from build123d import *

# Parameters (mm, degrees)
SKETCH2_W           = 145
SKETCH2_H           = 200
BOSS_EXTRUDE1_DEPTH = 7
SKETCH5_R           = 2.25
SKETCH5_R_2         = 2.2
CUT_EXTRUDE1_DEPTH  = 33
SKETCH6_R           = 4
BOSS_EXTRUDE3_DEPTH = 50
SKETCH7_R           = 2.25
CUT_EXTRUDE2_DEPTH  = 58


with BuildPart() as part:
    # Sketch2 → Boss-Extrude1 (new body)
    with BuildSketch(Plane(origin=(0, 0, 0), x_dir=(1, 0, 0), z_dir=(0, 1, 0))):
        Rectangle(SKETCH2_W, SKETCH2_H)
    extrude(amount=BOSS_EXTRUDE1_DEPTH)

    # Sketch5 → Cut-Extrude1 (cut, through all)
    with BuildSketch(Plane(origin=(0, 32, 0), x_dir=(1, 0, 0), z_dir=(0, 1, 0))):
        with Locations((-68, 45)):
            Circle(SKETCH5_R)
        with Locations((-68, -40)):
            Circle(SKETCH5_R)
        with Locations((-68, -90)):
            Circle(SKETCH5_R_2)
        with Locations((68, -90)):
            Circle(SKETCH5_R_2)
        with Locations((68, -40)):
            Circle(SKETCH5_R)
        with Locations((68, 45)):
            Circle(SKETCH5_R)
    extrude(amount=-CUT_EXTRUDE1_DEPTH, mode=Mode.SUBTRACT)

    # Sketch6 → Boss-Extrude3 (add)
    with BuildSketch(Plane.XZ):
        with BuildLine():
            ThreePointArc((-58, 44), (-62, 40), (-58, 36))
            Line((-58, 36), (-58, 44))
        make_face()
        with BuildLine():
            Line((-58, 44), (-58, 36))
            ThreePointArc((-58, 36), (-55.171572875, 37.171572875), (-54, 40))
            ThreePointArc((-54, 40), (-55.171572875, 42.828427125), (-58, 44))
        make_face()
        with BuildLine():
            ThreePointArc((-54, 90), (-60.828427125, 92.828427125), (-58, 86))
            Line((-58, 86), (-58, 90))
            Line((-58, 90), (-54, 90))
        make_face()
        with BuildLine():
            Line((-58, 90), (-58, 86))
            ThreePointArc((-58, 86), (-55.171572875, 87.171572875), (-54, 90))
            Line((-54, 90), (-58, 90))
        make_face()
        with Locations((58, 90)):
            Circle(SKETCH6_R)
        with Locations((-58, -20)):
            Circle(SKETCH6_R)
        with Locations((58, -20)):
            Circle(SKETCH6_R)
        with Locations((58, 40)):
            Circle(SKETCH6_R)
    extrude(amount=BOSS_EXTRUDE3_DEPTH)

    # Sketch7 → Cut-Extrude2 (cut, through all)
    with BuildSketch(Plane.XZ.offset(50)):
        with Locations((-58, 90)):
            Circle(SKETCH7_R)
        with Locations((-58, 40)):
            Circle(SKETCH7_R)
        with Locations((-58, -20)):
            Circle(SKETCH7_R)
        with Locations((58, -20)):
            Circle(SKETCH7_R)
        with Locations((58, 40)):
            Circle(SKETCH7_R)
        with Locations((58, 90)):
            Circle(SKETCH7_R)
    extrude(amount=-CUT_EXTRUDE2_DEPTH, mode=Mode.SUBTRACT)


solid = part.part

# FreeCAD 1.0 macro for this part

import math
import FreeCAD as App
import Part
import Sketcher
from FreeCAD import Vector

doc = App.newDocument("Part")
body = doc.addObject("PartDesign::Body", "Body")

# Sketch on XZ plane
sketch1 = body.newObject("Sketcher::SketchObject", "Sketch")
sketch1.AttachmentSupport = (doc.getObject("XZ_Plane"), [""])
sketch1.MapMode = "FlatFace"
sketch1.addGeometry(Part.LineSegment(Vector(-72, -100, 0), Vector(-72, 100, 0)), False)
sketch1.addGeometry(Part.LineSegment(Vector(-72, 100, 0), Vector(72, 100, 0)), False)
sketch1.addGeometry(Part.LineSegment(Vector(72, 100, 0), Vector(72, -100, 0)), False)
sketch1.addGeometry(Part.LineSegment(Vector(72, -100, 0), Vector(-72, -100, 0)), False)
sketch1.addConstraint(Sketcher.Constraint("Coincident", 0, 2, 1, 1))
sketch1.addConstraint(Sketcher.Constraint("Coincident", 1, 2, 2, 1))
sketch1.addConstraint(Sketcher.Constraint("Coincident", 2, 2, 3, 1))
sketch1.addConstraint(Sketcher.Constraint("Coincident", 3, 2, 0, 1))
sketch1.addConstraint(Sketcher.Constraint("Vertical", 0))
sketch1.addConstraint(Sketcher.Constraint("Horizontal", 1))
sketch1.addConstraint(Sketcher.Constraint("Vertical", 2))
sketch1.addConstraint(Sketcher.Constraint("Horizontal", 3))
sketch1.addConstraint(Sketcher.Constraint("Symmetric", 0, 2, 2, 2, -1, 1))
sketch1.addConstraint(Sketcher.Constraint("DistanceX", 1, 1, 1, 2, 145.0))
sketch1.addConstraint(Sketcher.Constraint("DistanceY", 0, 1, 0, 2, 200.0))
pad1 = body.newObject("PartDesign::Pad", "Pad")
pad1.Profile = sketch1
pad1.Length = 7
pad1.Reversed = True

# Sketch on XZ plane
sketch2 = body.newObject("Sketcher::SketchObject", "Sketch001")
sketch2.AttachmentSupport = (doc.getObject("XZ_Plane"), [""])
sketch2.MapMode = "FlatFace"
sketch2.AttachmentOffset = App.Placement(Vector(0, 0, -32), App.Rotation())
sketch2.addGeometry(Part.Circle(Vector(-68, -45, 0), Vector(0, 0, 1), 2.2), False)
sketch2.addGeometry(Part.Circle(Vector(-68, 40, 0), Vector(0, 0, 1), 2.2), False)
sketch2.addGeometry(Part.Circle(Vector(-68, 90, 0), Vector(0, 0, 1), 2.2), False)
sketch2.addGeometry(Part.Circle(Vector(68, 90, 0), Vector(0, 0, 1), 2.2), False)
sketch2.addGeometry(Part.Circle(Vector(68, 40, 0), Vector(0, 0, 1), 2.2), False)
sketch2.addGeometry(Part.Circle(Vector(68, -45, 0), Vector(0, 0, 1), 2.2), False)
sketch2.addConstraint(Sketcher.Constraint("Equal", 0, 1))
sketch2.addConstraint(Sketcher.Constraint("Equal", 2, 3))
sketch2.addConstraint(Sketcher.Constraint("Equal", 1, 4))
sketch2.addConstraint(Sketcher.Constraint("Equal", 4, 5))
sketch2.addConstraint(Sketcher.Constraint("Symmetric", 2, 3, 3, 3, -2))
sketch2.addConstraint(Sketcher.Constraint("Symmetric", 1, 3, 4, 3, -2))
sketch2.addConstraint(Sketcher.Constraint("Symmetric", 0, 3, 5, 3, -2))
sketch2.addConstraint(Sketcher.Constraint("Vertical", 0, 3, 1, 3))
sketch2.addConstraint(Sketcher.Constraint("Vertical", 1, 3, 2, 3))
sketch2.addConstraint(Sketcher.Constraint("Diameter", 0, 4.5))
sketch2.addConstraint(Sketcher.Constraint("Diameter", 2, 4.4))
sketch2.addConstraint(Sketcher.Constraint("DistanceX", 0, 3, -1, 1, 68.0))
sketch2.addConstraint(Sketcher.Constraint("DistanceY", 0, 3, -1, 1, 45.0))
sketch2.addConstraint(Sketcher.Constraint("DistanceY", -1, 1, 1, 3, 40.0))
sketch2.addConstraint(Sketcher.Constraint("DistanceY", -1, 1, 2, 3, 90.0))
pocket1 = body.newObject("PartDesign::Pocket", "Pocket")
pocket1.Profile = sketch2
pocket1.Type = "ThroughAll"
pocket1.Reversed = True

# Sketch on XZ plane
sketch3 = body.newObject("Sketcher::SketchObject", "Sketch002")
sketch3.AttachmentSupport = (doc.getObject("XZ_Plane"), [""])
sketch3.MapMode = "FlatFace"
sketch3.addGeometry(Part.ArcOfCircle(Part.Circle(Vector(-58, 40, 0), Vector(0, 0, 1), 4), math.radians(90), math.radians(270)), False)
sketch3.addGeometry(Part.ArcOfCircle(Part.Circle(Vector(-58, 40, 0), Vector(0, 0, 1), 4), math.radians(-90), math.radians(0)), False)
sketch3.addGeometry(Part.ArcOfCircle(Part.Circle(Vector(-58, 40, 0), Vector(0, 0, 1), 4), math.radians(0), math.radians(90)), False)
sketch3.addGeometry(Part.ArcOfCircle(Part.Circle(Vector(-58, 90, 0), Vector(0, 0, 1), 4), math.radians(0), math.radians(270)), False)
sketch3.addGeometry(Part.ArcOfCircle(Part.Circle(Vector(-58, 90, 0), Vector(0, 0, 1), 4), math.radians(-90), math.radians(0)), False)
sketch3.addGeometry(Part.Circle(Vector(58, 90, 0), Vector(0, 0, 1), 4), False)
sketch3.addGeometry(Part.Circle(Vector(-58, -20, 0), Vector(0, 0, 1), 4), False)
sketch3.addGeometry(Part.Circle(Vector(58, -20, 0), Vector(0, 0, 1), 4), False)
sketch3.addGeometry(Part.Circle(Vector(58, 40, 0), Vector(0, 0, 1), 4), False)
sketch3.addConstraint(Sketcher.Constraint("Tangent", 0, 2, 1, 1))
sketch3.addConstraint(Sketcher.Constraint("Tangent", 1, 2, 2, 1))
sketch3.addConstraint(Sketcher.Constraint("Tangent", 2, 2, 0, 1))
sketch3.addConstraint(Sketcher.Constraint("Tangent", 3, 1, 4, 2))
sketch3.addConstraint(Sketcher.Constraint("Coincident", 4, 1, 3, 2))
sketch3.addConstraint(Sketcher.Constraint("Equal", 2, 3))
sketch3.addConstraint(Sketcher.Constraint("Equal", 4, 5))
sketch3.addConstraint(Sketcher.Constraint("Equal", 5, 6))
sketch3.addConstraint(Sketcher.Constraint("Equal", 6, 7))
sketch3.addConstraint(Sketcher.Constraint("Equal", 7, 8))
sketch3.addConstraint(Sketcher.Constraint("Symmetric", 3, 3, 5, 3, -2))
sketch3.addConstraint(Sketcher.Constraint("Symmetric", 6, 3, 7, 3, -2))
sketch3.addConstraint(Sketcher.Constraint("Symmetric", 0, 3, 8, 3, -2))
sketch3.addConstraint(Sketcher.Constraint("Horizontal", 8, 3, 1, 2))
sketch3.addConstraint(Sketcher.Constraint("Horizontal", 5, 3, 3, 1))
sketch3.addConstraint(Sketcher.Constraint("Vertical", 2, 3, 3, 3))
sketch3.addConstraint(Sketcher.Constraint("Vertical", 4, 3, 6, 3))
sketch3.addConstraint(Sketcher.Constraint("Vertical", 6, 3, 0, 2))
sketch3.addConstraint(Sketcher.Constraint("Vertical", 0, 2, 2, 2))
sketch3.addConstraint(Sketcher.Constraint("Vertical", 2, 2, 4, 1))
sketch3.addConstraint(Sketcher.Constraint("Diameter", 5, 8.0))
sketch3.addConstraint(Sketcher.Constraint("DistanceX", 0, 3, -1, 1, 58.0))
sketch3.addConstraint(Sketcher.Constraint("DistanceY", -1, 1, 0, 3, 40.0))
sketch3.addConstraint(Sketcher.Constraint("DistanceY", -1, 1, 3, 3, 90.0))
sketch3.addConstraint(Sketcher.Constraint("DistanceY", 6, 3, -1, 1, 20.0))
pad2 = body.newObject("PartDesign::Pad", "Pad001")
pad2.Profile = sketch3
pad2.Length = 50

# Sketch on XZ plane
sketch4 = body.newObject("Sketcher::SketchObject", "Sketch003")
sketch4.AttachmentSupport = (doc.getObject("XZ_Plane"), [""])
sketch4.MapMode = "FlatFace"
sketch4.AttachmentOffset = App.Placement(Vector(0, 0, 50), App.Rotation())
sketch4.addGeometry(Part.Circle(Vector(-58, 90, 0), Vector(0, 0, 1), 2.2), False)
sketch4.addGeometry(Part.Circle(Vector(-58, 40, 0), Vector(0, 0, 1), 2.2), False)
sketch4.addGeometry(Part.Circle(Vector(-58, -20, 0), Vector(0, 0, 1), 2.2), False)
sketch4.addGeometry(Part.Circle(Vector(58, -20, 0), Vector(0, 0, 1), 2.2), False)
sketch4.addGeometry(Part.Circle(Vector(58, 40, 0), Vector(0, 0, 1), 2.2), False)
sketch4.addGeometry(Part.Circle(Vector(58, 90, 0), Vector(0, 0, 1), 2.2), False)
sketch4.addConstraint(Sketcher.Constraint("Equal", 0, 1))
sketch4.addConstraint(Sketcher.Constraint("Equal", 1, 2))
sketch4.addConstraint(Sketcher.Constraint("Equal", 2, 3))
sketch4.addConstraint(Sketcher.Constraint("Equal", 3, 4))
sketch4.addConstraint(Sketcher.Constraint("Equal", 4, 5))
sketch4.addConstraint(Sketcher.Constraint("Symmetric", 2, 3, 3, 3, -2))
sketch4.addConstraint(Sketcher.Constraint("Symmetric", 1, 3, 4, 3, -2))
sketch4.addConstraint(Sketcher.Constraint("Symmetric", 0, 3, 5, 3, -2))
sketch4.addConstraint(Sketcher.Constraint("Vertical", 0, 3, 1, 3))
sketch4.addConstraint(Sketcher.Constraint("Vertical", 1, 3, 2, 3))
sketch4.addConstraint(Sketcher.Constraint("Diameter", 0, 4.5))
sketch4.addConstraint(Sketcher.Constraint("DistanceX", 0, 3, -1, 1, 58.0))
sketch4.addConstraint(Sketcher.Constraint("DistanceY", -1, 1, 0, 3, 90.0))
sketch4.addConstraint(Sketcher.Constraint("DistanceY", -1, 1, 1, 3, 40.0))
sketch4.addConstraint(Sketcher.Constraint("DistanceY", 2, 3, -1, 1, 20.0))
pocket2 = body.newObject("PartDesign::Pocket", "Pocket001")
pocket2.Profile = sketch4
pocket2.Type = "ThroughAll"

doc.recompute()
